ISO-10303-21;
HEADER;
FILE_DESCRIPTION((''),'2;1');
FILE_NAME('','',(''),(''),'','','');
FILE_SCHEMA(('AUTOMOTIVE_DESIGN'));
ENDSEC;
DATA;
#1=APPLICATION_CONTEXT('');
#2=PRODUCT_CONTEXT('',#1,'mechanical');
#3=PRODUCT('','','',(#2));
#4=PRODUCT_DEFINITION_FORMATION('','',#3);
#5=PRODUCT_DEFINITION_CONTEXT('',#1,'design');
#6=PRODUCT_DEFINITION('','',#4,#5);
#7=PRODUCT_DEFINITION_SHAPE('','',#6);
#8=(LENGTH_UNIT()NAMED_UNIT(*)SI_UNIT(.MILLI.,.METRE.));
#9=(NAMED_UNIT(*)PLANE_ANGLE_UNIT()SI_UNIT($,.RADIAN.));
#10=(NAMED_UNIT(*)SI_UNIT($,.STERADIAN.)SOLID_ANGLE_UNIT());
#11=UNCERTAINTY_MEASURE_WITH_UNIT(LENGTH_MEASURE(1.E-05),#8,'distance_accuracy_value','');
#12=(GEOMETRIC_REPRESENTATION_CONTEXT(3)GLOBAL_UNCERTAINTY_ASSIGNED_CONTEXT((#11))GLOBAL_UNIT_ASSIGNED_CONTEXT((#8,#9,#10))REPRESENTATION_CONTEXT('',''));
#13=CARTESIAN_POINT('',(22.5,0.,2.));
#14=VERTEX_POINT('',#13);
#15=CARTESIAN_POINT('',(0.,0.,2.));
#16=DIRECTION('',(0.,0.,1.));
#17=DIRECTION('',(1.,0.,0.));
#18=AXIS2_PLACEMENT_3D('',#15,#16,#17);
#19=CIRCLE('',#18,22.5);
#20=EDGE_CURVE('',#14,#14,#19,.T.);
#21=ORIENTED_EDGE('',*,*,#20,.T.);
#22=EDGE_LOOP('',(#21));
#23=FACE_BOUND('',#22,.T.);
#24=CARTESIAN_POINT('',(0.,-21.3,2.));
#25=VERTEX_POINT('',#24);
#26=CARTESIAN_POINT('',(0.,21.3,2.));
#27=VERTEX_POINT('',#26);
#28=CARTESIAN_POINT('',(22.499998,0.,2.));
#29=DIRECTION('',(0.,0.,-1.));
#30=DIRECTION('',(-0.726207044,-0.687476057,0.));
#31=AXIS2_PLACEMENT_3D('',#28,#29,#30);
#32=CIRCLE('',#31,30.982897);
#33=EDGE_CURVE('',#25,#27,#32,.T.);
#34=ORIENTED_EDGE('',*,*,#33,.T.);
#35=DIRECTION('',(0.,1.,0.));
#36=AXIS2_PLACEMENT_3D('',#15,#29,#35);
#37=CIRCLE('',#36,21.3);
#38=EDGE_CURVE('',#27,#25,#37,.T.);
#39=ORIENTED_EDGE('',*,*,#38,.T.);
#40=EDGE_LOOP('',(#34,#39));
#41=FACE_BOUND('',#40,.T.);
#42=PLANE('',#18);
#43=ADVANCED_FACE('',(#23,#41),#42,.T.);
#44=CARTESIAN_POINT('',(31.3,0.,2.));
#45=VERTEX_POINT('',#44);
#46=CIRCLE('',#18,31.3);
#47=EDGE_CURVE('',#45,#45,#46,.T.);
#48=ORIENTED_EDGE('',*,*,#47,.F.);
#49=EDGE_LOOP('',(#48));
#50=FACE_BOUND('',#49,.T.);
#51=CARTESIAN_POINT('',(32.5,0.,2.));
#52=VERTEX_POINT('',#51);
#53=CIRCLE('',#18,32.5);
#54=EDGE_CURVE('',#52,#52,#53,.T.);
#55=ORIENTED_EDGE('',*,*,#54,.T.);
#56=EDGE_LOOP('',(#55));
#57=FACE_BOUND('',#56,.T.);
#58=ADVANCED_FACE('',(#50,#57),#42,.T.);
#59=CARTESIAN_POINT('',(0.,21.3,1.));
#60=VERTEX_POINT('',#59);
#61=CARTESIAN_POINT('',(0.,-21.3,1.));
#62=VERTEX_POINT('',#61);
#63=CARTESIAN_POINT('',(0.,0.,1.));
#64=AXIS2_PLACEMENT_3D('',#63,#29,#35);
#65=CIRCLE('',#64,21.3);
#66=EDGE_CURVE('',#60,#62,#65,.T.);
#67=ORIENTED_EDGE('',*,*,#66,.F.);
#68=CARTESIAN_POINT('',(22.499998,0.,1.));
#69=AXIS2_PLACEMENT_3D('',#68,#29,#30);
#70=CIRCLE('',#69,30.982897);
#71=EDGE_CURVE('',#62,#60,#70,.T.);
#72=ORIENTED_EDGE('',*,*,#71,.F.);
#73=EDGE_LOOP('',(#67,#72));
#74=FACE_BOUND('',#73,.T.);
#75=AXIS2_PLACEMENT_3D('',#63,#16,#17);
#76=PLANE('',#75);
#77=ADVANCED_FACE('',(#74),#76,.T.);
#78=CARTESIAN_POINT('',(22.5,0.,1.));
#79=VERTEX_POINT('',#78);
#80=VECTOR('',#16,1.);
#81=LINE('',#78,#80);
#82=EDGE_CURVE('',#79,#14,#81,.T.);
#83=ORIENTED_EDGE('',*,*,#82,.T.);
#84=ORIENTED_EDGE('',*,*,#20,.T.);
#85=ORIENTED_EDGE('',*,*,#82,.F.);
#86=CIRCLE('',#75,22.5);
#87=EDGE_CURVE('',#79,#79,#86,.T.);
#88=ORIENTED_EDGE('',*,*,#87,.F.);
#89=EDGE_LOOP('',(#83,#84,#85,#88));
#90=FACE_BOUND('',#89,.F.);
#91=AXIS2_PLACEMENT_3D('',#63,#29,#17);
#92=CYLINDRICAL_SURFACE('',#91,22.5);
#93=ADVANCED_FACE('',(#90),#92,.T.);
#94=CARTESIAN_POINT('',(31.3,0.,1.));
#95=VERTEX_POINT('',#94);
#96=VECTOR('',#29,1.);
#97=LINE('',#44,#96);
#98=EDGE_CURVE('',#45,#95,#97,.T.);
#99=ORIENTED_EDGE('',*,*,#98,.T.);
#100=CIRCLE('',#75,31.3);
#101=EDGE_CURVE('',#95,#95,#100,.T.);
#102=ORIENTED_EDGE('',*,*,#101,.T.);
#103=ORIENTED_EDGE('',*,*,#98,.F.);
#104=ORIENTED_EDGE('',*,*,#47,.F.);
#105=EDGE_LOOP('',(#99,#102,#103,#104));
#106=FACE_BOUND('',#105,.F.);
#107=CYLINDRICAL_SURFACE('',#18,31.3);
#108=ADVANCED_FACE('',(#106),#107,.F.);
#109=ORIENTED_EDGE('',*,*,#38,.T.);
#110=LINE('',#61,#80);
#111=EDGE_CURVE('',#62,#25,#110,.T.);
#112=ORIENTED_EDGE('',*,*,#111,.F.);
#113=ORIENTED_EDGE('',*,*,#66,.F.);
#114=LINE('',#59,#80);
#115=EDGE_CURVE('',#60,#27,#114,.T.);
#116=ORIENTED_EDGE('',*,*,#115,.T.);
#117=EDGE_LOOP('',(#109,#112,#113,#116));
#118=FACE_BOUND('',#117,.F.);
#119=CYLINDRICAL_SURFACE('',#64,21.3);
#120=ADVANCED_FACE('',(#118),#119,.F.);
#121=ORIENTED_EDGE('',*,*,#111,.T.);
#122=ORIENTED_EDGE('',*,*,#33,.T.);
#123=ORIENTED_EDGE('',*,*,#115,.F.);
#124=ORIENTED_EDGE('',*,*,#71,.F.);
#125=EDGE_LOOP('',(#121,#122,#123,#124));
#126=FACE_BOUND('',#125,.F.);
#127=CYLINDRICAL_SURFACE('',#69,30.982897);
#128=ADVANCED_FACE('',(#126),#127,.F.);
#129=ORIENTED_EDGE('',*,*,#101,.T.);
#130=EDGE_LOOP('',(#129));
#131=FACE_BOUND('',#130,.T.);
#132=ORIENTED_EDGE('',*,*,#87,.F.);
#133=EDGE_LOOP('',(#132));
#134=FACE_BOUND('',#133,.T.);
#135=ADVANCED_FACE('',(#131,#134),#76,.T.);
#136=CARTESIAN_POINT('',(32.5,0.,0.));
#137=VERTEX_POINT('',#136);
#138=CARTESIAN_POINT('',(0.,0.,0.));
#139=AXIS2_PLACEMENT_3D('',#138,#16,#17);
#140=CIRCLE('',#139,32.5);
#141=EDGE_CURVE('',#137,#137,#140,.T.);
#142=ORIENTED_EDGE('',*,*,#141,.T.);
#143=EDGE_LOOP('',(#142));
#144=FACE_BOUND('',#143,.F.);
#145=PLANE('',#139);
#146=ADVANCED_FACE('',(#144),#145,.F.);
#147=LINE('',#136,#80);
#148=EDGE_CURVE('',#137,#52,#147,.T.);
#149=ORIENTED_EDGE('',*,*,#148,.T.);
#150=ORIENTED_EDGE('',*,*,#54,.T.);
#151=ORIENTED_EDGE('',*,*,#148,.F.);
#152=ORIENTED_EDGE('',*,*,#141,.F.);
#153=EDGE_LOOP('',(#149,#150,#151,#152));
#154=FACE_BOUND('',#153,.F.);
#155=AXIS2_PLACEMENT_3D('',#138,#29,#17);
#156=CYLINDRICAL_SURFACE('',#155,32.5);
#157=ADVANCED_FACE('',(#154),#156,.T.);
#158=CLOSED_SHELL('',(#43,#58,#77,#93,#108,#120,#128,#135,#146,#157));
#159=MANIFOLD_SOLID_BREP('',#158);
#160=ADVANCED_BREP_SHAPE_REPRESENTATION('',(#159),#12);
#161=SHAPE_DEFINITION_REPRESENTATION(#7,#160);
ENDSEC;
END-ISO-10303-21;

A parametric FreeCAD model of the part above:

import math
import FreeCAD as App
import Part
import Sketcher
Q = App.Units.Quantity

doc = App.newDocument("Part")
params = doc.addObject("Spreadsheet::Sheet", "Params")
for row, (alias, value) in enumerate([
    ("sketch1_diameter", "65 mm"),
    ("pad1_length", "2 mm"),
    ("sketch2_diameter", "62.6 mm"),
    ("pocket1_length", "1 mm"),
    ("sketch3_diameter", "45 mm"),
    ("sketch3_radius", "21.3 mm"),
    ("pad2_length", "1 mm"),
], start=1):
    params.set(f"A{row}", alias)
    params.set(f"B{row}", "=" + value)
    params.setAlias(f"B{row}", alias)

body = doc.addObject("PartDesign::Body", "Body")

# Sketch on XY plane
sketch1 = doc.addObject("Sketcher::SketchObject", "Sketch")
body.addObject(sketch1)
sketch1.AttachmentSupport = (doc.XY_Plane, [""])
sketch1.MapMode = "FlatFace"
sketch1.addGeometry(Part.Circle(App.Vector(0, 0, 0), App.Vector(0, 0, 1), 32), False)
sketch1.addConstraint(Sketcher.Constraint("Coincident", 0, 3, -1, 1))
sketch1.addConstraint(Sketcher.Constraint("Diameter", 0, Q("65 mm")))
sketch1.setExpression("Constraints[1]", "Params.sketch1_diameter")
pad1 = doc.addObject("PartDesign::Pad", "Pad")
body.addObject(pad1)
pad1.Profile = sketch1
pad1.setExpression("Length", "Params.pad1_length")

# Sketch on XY plane
sketch2 = doc.addObject("Sketcher::SketchObject", "Sketch001")
body.addObject(sketch2)
sketch2.AttachmentSupport = (doc.XY_Plane, [""])
sketch2.MapMode = "FlatFace"
sketch2.AttachmentOffset = App.Placement(App.Vector(0, 0, 2), App.Rotation())
sketch2.addGeometry(Part.Circle(App.Vector(0, 0, 0), App.Vector(0, 0, 1), 31), False)
sketch2.addConstraint(Sketcher.Constraint("Coincident", 0, 3, -1, 1))
sketch2.addConstraint(Sketcher.Constraint("Diameter", 0, Q("62.6 mm")))
sketch2.setExpression("Constraints[1]", "Params.sketch2_diameter")
pocket1 = doc.addObject("PartDesign::Pocket", "Pocket")
body.addObject(pocket1)
pocket1.Profile = sketch2
pocket1.setExpression("Length", "Params.pocket1_length")

# Sketch on XY plane
sketch3 = doc.addObject("Sketcher::SketchObject", "Sketch002")
body.addObject(sketch3)
sketch3.AttachmentSupport = (doc.XY_Plane, [""])
sketch3.MapMode = "FlatFace"
sketch3.AttachmentOffset = App.Placement(App.Vector(0, 0, 1), App.Rotation())
sketch3.addGeometry(Part.Circle(App.Vector(0, 0, 0), App.Vector(0, 0, 1), 22), False)
sketch3.addGeometry(Part.ArcOfCircle(Part.Circle(App.Vector(0, 0, 0), App.Vector(0, 0, 1), 21), math.radians(-90), math.radians(90)), False)
sketch3.addGeometry(Part.ArcOfCircle(Part.Circle(App.Vector(22, 0, 0), App.Vector(0, 0, 1), 31), math.radians(137), math.radians(223)), False)
sketch3.addConstraint(Sketcher.Constraint("Coincident", 1, 1, 2, 2))
sketch3.addConstraint(Sketcher.Constraint("Coincident", 2, 1, 1, 2))
sketch3.addConstraint(Sketcher.Constraint("Coincident", 0, 3, -1, 1))
sketch3.addConstraint(Sketcher.Constraint("Coincident", 1, 3, -1, 1))
sketch3.addConstraint(Sketcher.Constraint("PointOnObject", 2, 3, -1))
sketch3.addConstraint(Sketcher.Constraint("PointOnObject", 1, 1, -2))
sketch3.addConstraint(Sketcher.Constraint("Diameter", 0, Q("45 mm")))
sketch3.addConstraint(Sketcher.Constraint("Radius", 1, Q("21.3 mm")))
sketch3.addConstraint(Sketcher.Constraint("DistanceX", -1, 1, 2, 3, Q("22.499998 mm")))
sketch3.setExpression("Constraints[6]", "Params.sketch3_diameter")
sketch3.setExpression("Constraints[7]", "Params.sketch3_radius")
pad2 = doc.addObject("PartDesign::Pad", "Pad001")
body.addObject(pad2)
pad2.Profile = sketch3
pad2.setExpression("Length", "Params.pad2_length")

doc.recompute()
